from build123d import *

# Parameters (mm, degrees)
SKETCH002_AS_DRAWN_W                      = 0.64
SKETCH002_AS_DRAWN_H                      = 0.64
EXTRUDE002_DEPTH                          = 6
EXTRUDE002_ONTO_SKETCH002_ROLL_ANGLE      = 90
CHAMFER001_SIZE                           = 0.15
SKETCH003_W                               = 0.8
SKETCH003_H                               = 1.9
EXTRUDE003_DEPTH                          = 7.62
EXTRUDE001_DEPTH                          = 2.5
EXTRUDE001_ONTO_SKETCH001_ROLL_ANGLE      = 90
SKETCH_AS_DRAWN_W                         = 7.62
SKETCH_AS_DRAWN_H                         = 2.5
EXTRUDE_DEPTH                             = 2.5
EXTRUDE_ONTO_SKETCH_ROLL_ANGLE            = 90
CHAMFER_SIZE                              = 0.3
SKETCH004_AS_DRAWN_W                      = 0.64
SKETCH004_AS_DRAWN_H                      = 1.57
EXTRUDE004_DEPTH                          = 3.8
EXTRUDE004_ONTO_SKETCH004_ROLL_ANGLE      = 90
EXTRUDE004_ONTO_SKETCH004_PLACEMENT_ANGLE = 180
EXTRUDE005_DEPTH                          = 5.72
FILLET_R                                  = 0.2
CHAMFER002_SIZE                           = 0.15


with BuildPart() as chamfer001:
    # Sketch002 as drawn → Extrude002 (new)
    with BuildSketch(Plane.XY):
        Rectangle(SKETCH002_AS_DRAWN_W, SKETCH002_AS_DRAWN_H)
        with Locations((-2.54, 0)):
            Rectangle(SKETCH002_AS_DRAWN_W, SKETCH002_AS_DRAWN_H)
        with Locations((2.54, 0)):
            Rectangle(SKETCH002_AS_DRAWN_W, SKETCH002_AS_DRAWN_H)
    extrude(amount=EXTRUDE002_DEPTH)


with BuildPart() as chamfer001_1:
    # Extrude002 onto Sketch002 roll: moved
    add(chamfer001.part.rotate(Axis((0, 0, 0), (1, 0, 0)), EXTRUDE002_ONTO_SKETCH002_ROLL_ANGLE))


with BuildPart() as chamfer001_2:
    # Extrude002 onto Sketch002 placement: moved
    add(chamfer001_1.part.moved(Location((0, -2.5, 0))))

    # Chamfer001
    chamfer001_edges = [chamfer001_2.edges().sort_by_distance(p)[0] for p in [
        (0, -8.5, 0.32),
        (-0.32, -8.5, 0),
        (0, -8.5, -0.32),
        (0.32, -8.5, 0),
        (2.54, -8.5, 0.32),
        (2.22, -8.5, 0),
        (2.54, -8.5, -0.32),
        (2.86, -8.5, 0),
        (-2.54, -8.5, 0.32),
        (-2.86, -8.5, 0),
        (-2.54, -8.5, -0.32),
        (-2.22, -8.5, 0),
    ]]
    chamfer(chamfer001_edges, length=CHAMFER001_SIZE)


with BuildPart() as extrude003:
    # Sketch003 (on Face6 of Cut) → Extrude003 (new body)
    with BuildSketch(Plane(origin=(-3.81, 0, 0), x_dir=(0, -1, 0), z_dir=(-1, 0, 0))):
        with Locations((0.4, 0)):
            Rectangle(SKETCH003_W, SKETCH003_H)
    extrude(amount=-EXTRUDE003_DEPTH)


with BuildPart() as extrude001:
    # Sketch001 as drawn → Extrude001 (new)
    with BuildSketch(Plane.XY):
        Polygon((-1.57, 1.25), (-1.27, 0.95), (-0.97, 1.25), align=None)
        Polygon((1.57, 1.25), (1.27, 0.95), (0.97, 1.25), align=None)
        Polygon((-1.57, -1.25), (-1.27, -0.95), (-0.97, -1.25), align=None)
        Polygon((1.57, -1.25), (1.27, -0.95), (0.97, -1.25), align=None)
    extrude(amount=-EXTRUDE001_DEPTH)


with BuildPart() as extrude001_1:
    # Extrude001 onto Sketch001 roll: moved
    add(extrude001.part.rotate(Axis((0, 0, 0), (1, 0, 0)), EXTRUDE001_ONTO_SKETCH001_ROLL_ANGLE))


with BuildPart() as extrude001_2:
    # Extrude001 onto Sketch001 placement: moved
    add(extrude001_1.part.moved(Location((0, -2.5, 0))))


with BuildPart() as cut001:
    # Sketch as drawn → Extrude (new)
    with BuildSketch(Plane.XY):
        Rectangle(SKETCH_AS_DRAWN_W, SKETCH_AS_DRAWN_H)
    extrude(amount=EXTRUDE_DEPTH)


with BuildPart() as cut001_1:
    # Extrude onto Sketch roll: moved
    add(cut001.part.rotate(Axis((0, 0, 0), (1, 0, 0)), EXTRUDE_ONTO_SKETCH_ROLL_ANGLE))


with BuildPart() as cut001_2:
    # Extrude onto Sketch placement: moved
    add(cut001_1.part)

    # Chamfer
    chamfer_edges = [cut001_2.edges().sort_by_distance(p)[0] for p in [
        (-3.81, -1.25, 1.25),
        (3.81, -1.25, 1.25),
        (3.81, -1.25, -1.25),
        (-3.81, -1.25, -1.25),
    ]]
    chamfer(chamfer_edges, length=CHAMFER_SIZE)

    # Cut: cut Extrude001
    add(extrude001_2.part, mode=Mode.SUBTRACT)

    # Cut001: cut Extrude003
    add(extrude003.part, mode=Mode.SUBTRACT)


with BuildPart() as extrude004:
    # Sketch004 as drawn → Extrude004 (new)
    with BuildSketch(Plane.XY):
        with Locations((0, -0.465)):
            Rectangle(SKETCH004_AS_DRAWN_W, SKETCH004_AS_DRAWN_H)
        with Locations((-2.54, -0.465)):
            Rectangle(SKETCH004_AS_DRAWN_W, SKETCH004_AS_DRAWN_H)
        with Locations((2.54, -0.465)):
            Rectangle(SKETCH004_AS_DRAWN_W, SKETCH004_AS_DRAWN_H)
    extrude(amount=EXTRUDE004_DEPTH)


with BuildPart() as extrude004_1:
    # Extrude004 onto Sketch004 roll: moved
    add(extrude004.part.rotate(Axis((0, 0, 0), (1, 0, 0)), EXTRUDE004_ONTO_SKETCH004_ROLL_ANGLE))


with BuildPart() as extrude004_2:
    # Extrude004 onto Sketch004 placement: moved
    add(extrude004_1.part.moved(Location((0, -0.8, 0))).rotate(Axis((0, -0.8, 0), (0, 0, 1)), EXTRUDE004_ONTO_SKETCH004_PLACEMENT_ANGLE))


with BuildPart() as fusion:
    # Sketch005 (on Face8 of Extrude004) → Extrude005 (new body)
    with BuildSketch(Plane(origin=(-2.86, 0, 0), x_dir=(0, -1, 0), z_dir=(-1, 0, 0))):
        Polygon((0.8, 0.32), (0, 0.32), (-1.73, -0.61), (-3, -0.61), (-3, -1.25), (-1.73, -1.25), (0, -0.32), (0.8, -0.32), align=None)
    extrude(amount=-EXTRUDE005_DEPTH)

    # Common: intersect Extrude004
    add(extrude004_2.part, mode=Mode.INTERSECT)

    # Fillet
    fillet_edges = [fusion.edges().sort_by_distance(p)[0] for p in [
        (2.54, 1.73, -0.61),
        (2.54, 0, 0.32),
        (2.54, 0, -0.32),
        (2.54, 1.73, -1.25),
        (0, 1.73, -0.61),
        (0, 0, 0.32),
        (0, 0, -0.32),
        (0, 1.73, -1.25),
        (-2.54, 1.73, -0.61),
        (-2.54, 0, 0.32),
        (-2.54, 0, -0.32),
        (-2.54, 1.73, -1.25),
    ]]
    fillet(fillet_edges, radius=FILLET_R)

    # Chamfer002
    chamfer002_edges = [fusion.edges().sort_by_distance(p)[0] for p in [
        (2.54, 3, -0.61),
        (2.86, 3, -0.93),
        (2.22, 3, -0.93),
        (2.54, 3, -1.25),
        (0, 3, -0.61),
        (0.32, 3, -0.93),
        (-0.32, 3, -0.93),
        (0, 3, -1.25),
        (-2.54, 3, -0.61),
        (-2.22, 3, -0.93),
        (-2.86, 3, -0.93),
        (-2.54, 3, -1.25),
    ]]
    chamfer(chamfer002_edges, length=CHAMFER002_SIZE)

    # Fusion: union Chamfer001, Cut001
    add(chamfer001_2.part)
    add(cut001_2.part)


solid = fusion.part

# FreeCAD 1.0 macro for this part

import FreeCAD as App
import Part
import Sketcher
Q = App.Units.Quantity


def edges_at(feature, points):
    """Names of the edges that pass closest to the given points."""
    edges = feature.Shape.Edges
    near = lambda p: min(range(len(edges)), key=lambda i: edges[i].distToShape(Part.Vertex(*p))[0])
    return sorted({f"Edge{near(p) + 1}" for p in points})


def add_polygon(sketch, points):
    """Adds a closed chain of lines whose ends are joined by coincident constraints."""
    first, n = sketch.GeometryCount, len(points)
    for a, b in zip(points, points[1:] + points[:1]):
        sketch.addGeometry(Part.LineSegment(App.Vector(*a, 0), App.Vector(*b, 0)), False)
    for i in range(n):
        sketch.addConstraint(Sketcher.Constraint("Coincident", first + i, 2, first + (i + 1) % n, 1))

doc = App.newDocument("Part")
params = doc.addObject("Spreadsheet::Sheet", "Params")
for row, (alias, value) in enumerate([
    ("sketch1_width", "0.64 mm"),
    ("pad1_length", "6 mm"),
    ("chamfer_size", "0.15 mm"),
    ("sketch2_width", "0.8 mm"),
    ("sketch2_height", "1.9 mm"),
    ("pad2_length", "7.62 mm"),
    ("sketch3_width", "0.6 mm"),
    ("pad3_length", "2.5 mm"),
    ("sketch4_height", "2.5 mm"),
    ("sketch4_width", "7.62 mm"),
    ("pad4_length", "2.5 mm"),
    ("chamfer2_size", "0.3 mm"),
    ("sketch5_width", "0.64 mm"),
    ("sketch5_height", "1.57 mm"),
    ("pad5_length", "3.8 mm"),
    ("sketch6_width", "0.8 mm"),
    ("sketch6_width2", "1.27 mm"),
    ("sketch6_height", "0.64 mm"),
    ("pad6_length", "5.72 mm"),
    ("fillet_radius", "0.2 mm"),
    ("chamfer3_size", "0.15 mm"),
], start=1):
    params.set(f"A{row}", alias)
    params.set(f"B{row}", "=" + value)
    params.setAlias(f"B{row}", alias)

body = doc.addObject("PartDesign::Body", "Body")
body.AllowCompound = True

# Sketch on XY plane
sketch1 = body.newObject("Sketcher::SketchObject", "Sketch")
sketch1.AttachmentSupport = (doc.getObject("XY_Plane"), [""])
sketch1.MapMode = "FlatFace"
add_polygon(sketch1, [(-0.3, 0.3), (-0.3, -0.3), (0.3, -0.3), (0.3, 0.3)])  # lines 0-3
add_polygon(sketch1, [(-2.9, 0.3), (-2.9, -0.3), (-2.2, -0.3), (-2.2, 0.3)])  # lines 4-7
add_polygon(sketch1, [(2.2, 0.3), (2.2, -0.3), (2.9, -0.3), (2.9, 0.3)])  # lines 8-11
sketch1.addConstraint([
    Sketcher.Constraint("Vertical", 0),
    Sketcher.Constraint("Horizontal", 1),
    Sketcher.Constraint("Vertical", 2),
    Sketcher.Constraint("Horizontal", 3),
    Sketcher.Constraint("Vertical", 4),
    Sketcher.Constraint("Horizontal", 5),
    Sketcher.Constraint("Vertical", 6),
    Sketcher.Constraint("Horizontal", 7),
    Sketcher.Constraint("Vertical", 8),
    Sketcher.Constraint("Horizontal", 9),
    Sketcher.Constraint("Vertical", 10),
    Sketcher.Constraint("Horizontal", 11),
    Sketcher.Constraint("Symmetric", 0, 2, 2, 2, -1, 1),
    Sketcher.Constraint("Symmetric", 6, 2, 8, 2, -1, 1),
    Sketcher.Constraint("Symmetric", 4, 2, 10, 2, -1, 1),
    Sketcher.Constraint("Horizontal", 1, 2, 4, 2),
    Sketcher.Constraint("Horizontal", 3, 2, 6, 2),
    Sketcher.Constraint("Equal", 3, 5),
    Sketcher.Constraint("Equal", 11, 0),
    Sketcher.Constraint("DistanceX", 1, 1, 1, 2, Q("0.64 mm")),
    Sketcher.Constraint("DistanceX", 5, 2, 0, 2, Q("1.9 mm")),
])
sketch1.setExpression("Constraints[31]", "Params.sketch1_width")
pad1 = body.newObject("PartDesign::Pad", "Pad")
pad1.Profile = sketch1
pad1.setExpression("Length", "Params.pad1_length")
body2 = doc.addObject("PartDesign::Body", "Body001")
body2.AllowCompound = True
doc.recompute()

body.Placement = App.Placement(App.Vector(0, 0, 0), App.Rotation(App.Vector(1, 0, 0), 90))
boolean = body2.newObject("PartDesign::Boolean", "Boolean")
boolean.Type = "Fuse"
boolean.addObjects([body])
body3 = doc.addObject("PartDesign::Body", "Body002")
body3.AllowCompound = True
doc.recompute()

body2.Placement = App.Placement(App.Vector(0, -2.5, 0), App.Rotation(App.Vector(0, 0, 1), 0))
boolean2 = body3.newObject("PartDesign::Boolean", "Boolean001")
boolean2.Type = "Fuse"
boolean2.addObjects([body2])
doc.recompute()

chamfer = body3.newObject("PartDesign::Chamfer", "Chamfer")
chamfer.Base = (boolean2, edges_at(boolean2, [
    (0, -8.5, 0.32),
    (-0.32, -8.5, 0),
    (0, -8.5, -0.32),
    (0.32, -8.5, 0),
    (2.54, -8.5, 0.32),
    (2.22, -8.5, 0),
    (2.54, -8.5, -0.32),
    (2.86, -8.5, 0),
    (-2.54, -8.5, 0.32),
    (-2.86, -8.5, 0),
    (-2.54, -8.5, -0.32),
    (-2.22, -8.5, 0),
]))
chamfer.setExpression("Size", "Params.chamfer_size")
body4 = doc.addObject("PartDesign::Body", "Body003")

# Sketch on YZ plane
sketch2 = body4.newObject("Sketcher::SketchObject", "Sketch001")
sketch2.AttachmentSupport = (doc.getObject("YZ_Plane003"), [""])
sketch2.MapMode = "FlatFace"
sketch2.AttachmentOffset = App.Placement(App.Vector(0, 0, -3.81), App.Rotation())
add_polygon(sketch2, [(0, 0.9), (0, -0.9), (-0.8, -0.9), (-0.8, 0.9)])  # lines 0-3
sketch2.addConstraint([
    Sketcher.Constraint("Vertical", 0),
    Sketcher.Constraint("Horizontal", 1),
    Sketcher.Constraint("Vertical", 2),
    Sketcher.Constraint("Horizontal", 3),
    Sketcher.Constraint("Symmetric", 0, 2, 3, 2, -1, 1),
    Sketcher.Constraint("DistanceX", 1, 2, 1, 1, Q("0.8 mm")),
    Sketcher.Constraint("DistanceY", 0, 2, 0, 1, Q("1.9 mm")),
])
sketch2.setExpression("Constraints[9]", "Params.sketch2_width")
sketch2.setExpression("Constraints[10]", "Params.sketch2_height")
pad2 = body4.newObject("PartDesign::Pad", "Pad001")
pad2.Profile = sketch2
pad2.setExpression("Length", "Params.pad2_length")
body5 = doc.addObject("PartDesign::Body", "Body004")
body5.AllowCompound = True

# Sketch on XY plane
sketch3 = body5.newObject("Sketcher::SketchObject", "Sketch002")
sketch3.AttachmentSupport = (doc.getObject("XY_Plane004"), [""])
sketch3.MapMode = "FlatFace"
add_polygon(sketch3, [(-1.57, 1.25), (-1.27, 0.95), (-0.97, 1.25)])  # lines 0-2
add_polygon(sketch3, [(1.27, 0.95), (1.57, 1.25), (0.97, 1.25)])  # lines 3-5
add_polygon(sketch3, [(-1.27, -0.95), (-1.57, -1.25), (-0.97, -1.25)])  # lines 6-8
add_polygon(sketch3, [(1.57, -1.25), (1.27, -0.95), (0.97, -1.25)])  # lines 9-11
sketch3.addConstraint([
    Sketcher.Constraint("Horizontal", 2),
    Sketcher.Constraint("Horizontal", 4),
    Sketcher.Constraint("Horizontal", 7),
    Sketcher.Constraint("Horizontal", 11),
    Sketcher.Constraint("Symmetric", 3, 2, 6, 2, -1, 1),
    Sketcher.Constraint("Symmetric", 5, 2, 8, 2, -1, 1),
    Sketcher.Constraint("Symmetric", 0, 2, 9, 2, -1, 1),
    Sketcher.Constraint("Symmetric", 1, 2, 10, 2, -1, 1),
    Sketcher.Constraint("Symmetric", 2, 2, 3, 2, -2),
    Sketcher.Constraint("Symmetric", 0, 2, 5, 2, -2),
    Sketcher.Constraint("Perpendicular", 0, 1),
    Sketcher.Constraint("Parallel", 1, 3),
    Sketcher.Constraint("Perpendicular", 3, 5),
    Sketcher.Constraint("Perpendicular", 6, 8),
    Sketcher.Constraint("Parallel", 8, 9),
    Sketcher.Constraint("DistanceX", 2, 2, 2, 1, Q("0.6 mm")),
    Sketcher.Constraint("DistanceY", 6, 2, 0, 2, Q("2.2 mm")),
    Sketcher.Constraint("DistanceX", 0, 2, -1, 1, Q("1.27 mm")),
])
sketch3.setExpression("Constraints[27]", "Params.sketch3_width")
pad3 = body5.newObject("PartDesign::Pad", "Pad002")
pad3.Profile = sketch3
pad3.setExpression("Length", "Params.pad3_length")
pad3.Reversed = True
body6 = doc.addObject("PartDesign::Body", "Body005")
body6.AllowCompound = True
doc.recompute()

body5.Placement = App.Placement(App.Vector(0, 0, 0), App.Rotation(App.Vector(1, 0, 0), 90))
boolean3 = body6.newObject("PartDesign::Boolean", "Boolean002")
boolean3.Type = "Fuse"
boolean3.addObjects([body5])
body7 = doc.addObject("PartDesign::Body", "Body006")
body7.AllowCompound = True
doc.recompute()

body6.Placement = App.Placement(App.Vector(0, -2.5, 0), App.Rotation(App.Vector(0, 0, 1), 0))
boolean4 = body7.newObject("PartDesign::Boolean", "Boolean003")
boolean4.Type = "Fuse"
boolean4.addObjects([body6])
body8 = doc.addObject("PartDesign::Body", "Body007")

# Sketch on XY plane
sketch4 = body8.newObject("Sketcher::SketchObject", "Sketch003")
sketch4.AttachmentSupport = (doc.getObject("XY_Plane007"), [""])
sketch4.MapMode = "FlatFace"
add_polygon(sketch4, [(-3.8, 1.2), (-3.8, -1.2), (3.8, -1.2), (3.8, 1.2)])  # lines 0-3
sketch4.addConstraint([
    Sketcher.Constraint("Vertical", 0),
    Sketcher.Constraint("Horizontal", 1),
    Sketcher.Constraint("Vertical", 2),
    Sketcher.Constraint("Horizontal", 3),
    Sketcher.Constraint("Symmetric", 0, 2, 2, 2, -1, 1),
    Sketcher.Constraint("DistanceY", 0, 2, 0, 1, Q("2.5 mm")),
    Sketcher.Constraint("DistanceX", 1, 1, 1, 2, Q("7.62 mm")),
])
sketch4.setExpression("Constraints[9]", "Params.sketch4_height")
sketch4.setExpression("Constraints[10]", "Params.sketch4_width")
pad4 = body8.newObject("PartDesign::Pad", "Pad003")
pad4.Profile = sketch4
pad4.setExpression("Length", "Params.pad4_length")
body9 = doc.addObject("PartDesign::Body", "Body008")
doc.recompute()

body8.Placement = App.Placement(App.Vector(0, 0, 0), App.Rotation(App.Vector(1, 0, 0), 90))
boolean5 = body9.newObject("PartDesign::Boolean", "Boolean004")
boolean5.Type = "Fuse"
boolean5.addObjects([body8])
doc.recompute()

chamfer2 = body9.newObject("PartDesign::Chamfer", "Chamfer001")
chamfer2.Base = (boolean5, edges_at(boolean5, [
    (-3.81, -1.25, 1.25),
    (3.81, -1.25, 1.25),
    (3.81, -1.25, -1.25),
    (-3.81, -1.25, -1.25),
]))
chamfer2.setExpression("Size", "Params.chamfer2_size")
doc.recompute()

boolean6 = body9.newObject("PartDesign::Boolean", "Boolean005")
boolean6.Type = "Cut"
boolean6.addObjects([body7])
doc.recompute()

boolean7 = body9.newObject("PartDesign::Boolean", "Boolean006")
boolean7.Type = "Cut"
boolean7.addObjects([body4])
body10 = doc.addObject("PartDesign::Body", "Body009")
body10.AllowCompound = True

# Sketch on XY plane
sketch5 = body10.newObject("Sketcher::SketchObject", "Sketch004")
sketch5.AttachmentSupport = (doc.getObject("XY_Plane009"), [""])
sketch5.MapMode = "FlatFace"
add_polygon(sketch5, [(-0.3, 0.3), (-0.3, -1.2), (0.3, -1.2), (0.3, 0.3)])  # lines 0-3
add_polygon(sketch5, [(-2.9, 0.3), (-2.9, -1.2), (-2.2, -1.2), (-2.2, 0.3)])  # lines 4-7
add_polygon(sketch5, [(2.2, 0.3), (2.2, -1.2), (2.9, -1.2), (2.9, 0.3)])  # lines 8-11
sketch5.addConstraint([
    Sketcher.Constraint("Vertical", 0),
    Sketcher.Constraint("Horizontal", 1),
    Sketcher.Constraint("Vertical", 2),
    Sketcher.Constraint("Horizontal", 3),
    Sketcher.Constraint("Vertical", 4),
    Sketcher.Constraint("Horizontal", 5),
    Sketcher.Constraint("Vertical", 6),
    Sketcher.Constraint("Horizontal", 7),
    Sketcher.Constraint("Vertical", 8),
    Sketcher.Constraint("Horizontal", 9),
    Sketcher.Constraint("Vertical", 10),
    Sketcher.Constraint("Horizontal", 11),
    Sketcher.Constraint("Symmetric", 5, 2, 8, 2, -2),
    Sketcher.Constraint("Symmetric", 7, 2, 10, 2, -2),
    Sketcher.Constraint("Horizontal", 1, 2, 4, 2),
    Sketcher.Constraint("Horizontal", 3, 2, 6, 2),
    Sketcher.Constraint("Equal", 3, 5),
    Sketcher.Constraint("DistanceX", 1, 1, 1, 2, Q("0.64 mm")),
    Sketcher.Constraint("DistanceY", 0, 2, 0, 1, Q("1.57 mm")),
    Sketcher.Constraint("DistanceX", 5, 2, 0, 2, Q("1.9 mm")),
    Sketcher.Constraint("DistanceX", 1, 2, 8, 2, Q("1.9 mm")),
    Sketcher.Constraint("DistanceY", 0, 2, -1, 1, Q("1.25 mm")),
])
sketch5.setExpression("Constraints[29]", "Params.sketch5_width")
sketch5.setExpression("Constraints[30]", "Params.sketch5_height")
pad5 = body10.newObject("PartDesign::Pad", "Pad004")
pad5.Profile = sketch5
pad5.setExpression("Length", "Params.pad5_length")
body11 = doc.addObject("PartDesign::Body", "Body010")
body11.AllowCompound = True
doc.recompute()

body10.Placement = App.Placement(App.Vector(0, 0, 0), App.Rotation(App.Vector(1, 0, 0), 90))
boolean8 = body11.newObject("PartDesign::Boolean", "Boolean007")
boolean8.Type = "Fuse"
boolean8.addObjects([body10])
body12 = doc.addObject("PartDesign::Body", "Body011")
body12.AllowCompound = True
doc.recompute()

body11.Placement = App.Placement(App.Vector(0, -0.8, 0), App.Rotation(App.Vector(0, 0, 1), 180))
boolean9 = body12.newObject("PartDesign::Boolean", "Boolean008")
boolean9.Type = "Fuse"
boolean9.addObjects([body11])
body13 = doc.addObject("PartDesign::Body", "Body012")
body13.AllowCompound = True

# Sketch on YZ plane
sketch6 = body13.newObject("Sketcher::SketchObject", "Sketch005")
sketch6.AttachmentSupport = (doc.getObject("YZ_Plane012"), [""])
sketch6.MapMode = "FlatFace"
sketch6.AttachmentOffset = App.Placement(App.Vector(0, 0, -2.86), App.Rotation())
add_polygon(sketch6, [(-0.8, 0.3), (0, 0.3), (1.7, -0.6), (3, -0.6), (3, -1.2), (1.7, -1.2), (0, -0.3), (-0.8, -0.3)])  # lines 0-7
sketch6.addConstraint([
    Sketcher.Constraint("Horizontal", 0),
    Sketcher.Constraint("Horizontal", 2),
    Sketcher.Constraint("Vertical", 3),
    Sketcher.Constraint("Horizontal", 4),
    Sketcher.Constraint("Horizontal", 6),
    Sketcher.Constraint("Vertical", 7),
    Sketcher.Constraint("Symmetric", 0, 2, 5, 2, -1, 1),
    Sketcher.Constraint("PointOnObject", 0, 2, -2),
    Sketcher.Constraint("Parallel", 1, 5),
    Sketcher.Constraint("Vertical", 1, 2, 4, 2),
    Sketcher.Constraint("DistanceX", 0, 1, 0, 2, Q("0.8 mm")),
    Sketcher.Constraint("DistanceX", -1, 1, 2, 2, Q("3 mm")),
    Sketcher.Constraint("DistanceX", 2, 1, 2, 2, Q("1.27 mm")),
    Sketcher.Constraint("DistanceY", 3, 2, 3, 1, Q("0.64 mm")),
    Sketcher.Constraint("DistanceY", 1, 2, -1, 1, Q("0.61 mm")),
])
sketch6.setExpression("Constraints[18]", "Params.sketch6_width")
sketch6.setExpression("Constraints[20]", "Params.sketch6_width2")
sketch6.setExpression("Constraints[21]", "Params.sketch6_height")
pad6 = body13.newObject("PartDesign::Pad", "Pad005")
pad6.Profile = sketch6
pad6.setExpression("Length", "Params.pad6_length")
doc.recompute()

boolean10 = body13.newObject("PartDesign::Boolean", "Boolean009")
boolean10.Type = "Common"
boolean10.addObjects([body12])
doc.recompute()

fillet = body13.newObject("PartDesign::Fillet", "Fillet")
fillet.Base = (boolean10, edges_at(boolean10, [
    (2.54, 1.73, -0.61),
    (2.54, 0, 0.32),
    (2.54, 0, -0.32),
    (2.54, 1.73, -1.25),
    (0, 1.73, -0.61),
    (0, 0, 0.32),
    (0, 0, -0.32),
    (0, 1.73, -1.25),
    (-2.54, 1.73, -0.61),
    (-2.54, 0, 0.32),
    (-2.54, 0, -0.32),
    (-2.54, 1.73, -1.25),
]))
fillet.setExpression("Radius", "Params.fillet_radius")
doc.recompute()

chamfer3 = body13.newObject("PartDesign::Chamfer", "Chamfer002")
chamfer3.Base = (fillet, edges_at(fillet, [
    (2.54, 3, -0.61),
    (2.86, 3, -0.93),
    (2.22, 3, -0.93),
    (2.54, 3, -1.25),
    (0, 3, -0.61),
    (0.32, 3, -0.93),
    (-0.32, 3, -0.93),
    (0, 3, -1.25),
    (-2.54, 3, -0.61),
    (-2.22, 3, -0.93),
    (-2.86, 3, -0.93),
    (-2.54, 3, -1.25),
]))
chamfer3.setExpression("Size", "Params.chamfer3_size")
doc.recompute()

boolean11 = body13.newObject("PartDesign::Boolean", "Boolean010")
boolean11.Type = "Fuse"
boolean11.addObjects([body3])
doc.recompute()

boolean12 = body13.newObject("PartDesign::Boolean", "Boolean011")
boolean12.Type = "Fuse"
boolean12.addObjects([body9])

doc.recompute()
